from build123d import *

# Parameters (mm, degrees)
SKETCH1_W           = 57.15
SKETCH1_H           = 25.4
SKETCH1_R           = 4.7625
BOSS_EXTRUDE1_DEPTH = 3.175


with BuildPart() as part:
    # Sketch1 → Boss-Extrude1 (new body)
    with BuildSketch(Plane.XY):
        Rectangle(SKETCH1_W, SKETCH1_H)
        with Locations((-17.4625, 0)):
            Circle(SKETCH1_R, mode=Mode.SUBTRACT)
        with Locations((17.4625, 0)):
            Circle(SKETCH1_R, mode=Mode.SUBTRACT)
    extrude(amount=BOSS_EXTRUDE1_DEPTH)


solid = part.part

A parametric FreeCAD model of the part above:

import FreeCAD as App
import Part
import Sketcher
Q = App.Units.Quantity

doc = App.newDocument("Part")
body = doc.addObject("PartDesign::Body", "Body")

# Sketch on XY plane
sketch1 = body.newObject("Sketcher::SketchObject", "Sketch")
sketch1.AttachmentSupport = (doc.getObject("XY_Plane"), [""])
sketch1.MapMode = "FlatFace"
sketch1.addGeometry([
    Part.LineSegment(App.Vector(-28.6, 12.7, 0), App.Vector(-28.6, -12.7, 0)),  # 0
    Part.LineSegment(App.Vector(-28.6, -12.7, 0), App.Vector(28.6, -12.7, 0)),  # 1
    Part.LineSegment(App.Vector(28.6, -12.7, 0), App.Vector(28.6, 12.7, 0)),  # 2
    Part.LineSegment(App.Vector(28.6, 12.7, 0), App.Vector(-28.6, 12.7, 0)),  # 3
    Part.Circle(App.Vector(-17.5, 0, 0), App.Vector(0, 0, 1), 4.8),  # 4
    Part.Circle(App.Vector(17.5, 0, 0), App.Vector(0, 0, 1), 4.8),  # 5
], False)
sketch1.addConstraint([
    Sketcher.Constraint("Coincident", 0, 2, 1, 1),
    Sketcher.Constraint("Coincident", 1, 2, 2, 1),
    Sketcher.Constraint("Coincident", 2, 2, 3, 1),
    Sketcher.Constraint("Coincident", 3, 2, 0, 1),
    Sketcher.Constraint("Vertical", 0),
    Sketcher.Constraint("Horizontal", 1),
    Sketcher.Constraint("Vertical", 2),
    Sketcher.Constraint("Horizontal", 3),
    Sketcher.Constraint("Equal", 4, 5),
    Sketcher.Constraint("Symmetric", 4, 3, 5, 3, -1, 1),
    Sketcher.Constraint("Symmetric", 0, 2, 2, 2, -1, 1),
    Sketcher.Constraint("PointOnObject", 4, 3, -1),
    Sketcher.Constraint("DistanceY", 0, 2, 0, 1, Q("1 in")),
    Sketcher.Constraint("Diameter", 4, Q("0.375 in")),
    Sketcher.Constraint("DistanceX", 1, 1, 1, 2, Q("2.25 in")),
    Sketcher.Constraint("DistanceX", 4, 3, -1, 1, Q("0.6875 in")),
])
pad1 = body.newObject("PartDesign::Pad", "Pad")
pad1.Profile = sketch1
pad1.Length = Q("0.125 in")

doc.recompute()
